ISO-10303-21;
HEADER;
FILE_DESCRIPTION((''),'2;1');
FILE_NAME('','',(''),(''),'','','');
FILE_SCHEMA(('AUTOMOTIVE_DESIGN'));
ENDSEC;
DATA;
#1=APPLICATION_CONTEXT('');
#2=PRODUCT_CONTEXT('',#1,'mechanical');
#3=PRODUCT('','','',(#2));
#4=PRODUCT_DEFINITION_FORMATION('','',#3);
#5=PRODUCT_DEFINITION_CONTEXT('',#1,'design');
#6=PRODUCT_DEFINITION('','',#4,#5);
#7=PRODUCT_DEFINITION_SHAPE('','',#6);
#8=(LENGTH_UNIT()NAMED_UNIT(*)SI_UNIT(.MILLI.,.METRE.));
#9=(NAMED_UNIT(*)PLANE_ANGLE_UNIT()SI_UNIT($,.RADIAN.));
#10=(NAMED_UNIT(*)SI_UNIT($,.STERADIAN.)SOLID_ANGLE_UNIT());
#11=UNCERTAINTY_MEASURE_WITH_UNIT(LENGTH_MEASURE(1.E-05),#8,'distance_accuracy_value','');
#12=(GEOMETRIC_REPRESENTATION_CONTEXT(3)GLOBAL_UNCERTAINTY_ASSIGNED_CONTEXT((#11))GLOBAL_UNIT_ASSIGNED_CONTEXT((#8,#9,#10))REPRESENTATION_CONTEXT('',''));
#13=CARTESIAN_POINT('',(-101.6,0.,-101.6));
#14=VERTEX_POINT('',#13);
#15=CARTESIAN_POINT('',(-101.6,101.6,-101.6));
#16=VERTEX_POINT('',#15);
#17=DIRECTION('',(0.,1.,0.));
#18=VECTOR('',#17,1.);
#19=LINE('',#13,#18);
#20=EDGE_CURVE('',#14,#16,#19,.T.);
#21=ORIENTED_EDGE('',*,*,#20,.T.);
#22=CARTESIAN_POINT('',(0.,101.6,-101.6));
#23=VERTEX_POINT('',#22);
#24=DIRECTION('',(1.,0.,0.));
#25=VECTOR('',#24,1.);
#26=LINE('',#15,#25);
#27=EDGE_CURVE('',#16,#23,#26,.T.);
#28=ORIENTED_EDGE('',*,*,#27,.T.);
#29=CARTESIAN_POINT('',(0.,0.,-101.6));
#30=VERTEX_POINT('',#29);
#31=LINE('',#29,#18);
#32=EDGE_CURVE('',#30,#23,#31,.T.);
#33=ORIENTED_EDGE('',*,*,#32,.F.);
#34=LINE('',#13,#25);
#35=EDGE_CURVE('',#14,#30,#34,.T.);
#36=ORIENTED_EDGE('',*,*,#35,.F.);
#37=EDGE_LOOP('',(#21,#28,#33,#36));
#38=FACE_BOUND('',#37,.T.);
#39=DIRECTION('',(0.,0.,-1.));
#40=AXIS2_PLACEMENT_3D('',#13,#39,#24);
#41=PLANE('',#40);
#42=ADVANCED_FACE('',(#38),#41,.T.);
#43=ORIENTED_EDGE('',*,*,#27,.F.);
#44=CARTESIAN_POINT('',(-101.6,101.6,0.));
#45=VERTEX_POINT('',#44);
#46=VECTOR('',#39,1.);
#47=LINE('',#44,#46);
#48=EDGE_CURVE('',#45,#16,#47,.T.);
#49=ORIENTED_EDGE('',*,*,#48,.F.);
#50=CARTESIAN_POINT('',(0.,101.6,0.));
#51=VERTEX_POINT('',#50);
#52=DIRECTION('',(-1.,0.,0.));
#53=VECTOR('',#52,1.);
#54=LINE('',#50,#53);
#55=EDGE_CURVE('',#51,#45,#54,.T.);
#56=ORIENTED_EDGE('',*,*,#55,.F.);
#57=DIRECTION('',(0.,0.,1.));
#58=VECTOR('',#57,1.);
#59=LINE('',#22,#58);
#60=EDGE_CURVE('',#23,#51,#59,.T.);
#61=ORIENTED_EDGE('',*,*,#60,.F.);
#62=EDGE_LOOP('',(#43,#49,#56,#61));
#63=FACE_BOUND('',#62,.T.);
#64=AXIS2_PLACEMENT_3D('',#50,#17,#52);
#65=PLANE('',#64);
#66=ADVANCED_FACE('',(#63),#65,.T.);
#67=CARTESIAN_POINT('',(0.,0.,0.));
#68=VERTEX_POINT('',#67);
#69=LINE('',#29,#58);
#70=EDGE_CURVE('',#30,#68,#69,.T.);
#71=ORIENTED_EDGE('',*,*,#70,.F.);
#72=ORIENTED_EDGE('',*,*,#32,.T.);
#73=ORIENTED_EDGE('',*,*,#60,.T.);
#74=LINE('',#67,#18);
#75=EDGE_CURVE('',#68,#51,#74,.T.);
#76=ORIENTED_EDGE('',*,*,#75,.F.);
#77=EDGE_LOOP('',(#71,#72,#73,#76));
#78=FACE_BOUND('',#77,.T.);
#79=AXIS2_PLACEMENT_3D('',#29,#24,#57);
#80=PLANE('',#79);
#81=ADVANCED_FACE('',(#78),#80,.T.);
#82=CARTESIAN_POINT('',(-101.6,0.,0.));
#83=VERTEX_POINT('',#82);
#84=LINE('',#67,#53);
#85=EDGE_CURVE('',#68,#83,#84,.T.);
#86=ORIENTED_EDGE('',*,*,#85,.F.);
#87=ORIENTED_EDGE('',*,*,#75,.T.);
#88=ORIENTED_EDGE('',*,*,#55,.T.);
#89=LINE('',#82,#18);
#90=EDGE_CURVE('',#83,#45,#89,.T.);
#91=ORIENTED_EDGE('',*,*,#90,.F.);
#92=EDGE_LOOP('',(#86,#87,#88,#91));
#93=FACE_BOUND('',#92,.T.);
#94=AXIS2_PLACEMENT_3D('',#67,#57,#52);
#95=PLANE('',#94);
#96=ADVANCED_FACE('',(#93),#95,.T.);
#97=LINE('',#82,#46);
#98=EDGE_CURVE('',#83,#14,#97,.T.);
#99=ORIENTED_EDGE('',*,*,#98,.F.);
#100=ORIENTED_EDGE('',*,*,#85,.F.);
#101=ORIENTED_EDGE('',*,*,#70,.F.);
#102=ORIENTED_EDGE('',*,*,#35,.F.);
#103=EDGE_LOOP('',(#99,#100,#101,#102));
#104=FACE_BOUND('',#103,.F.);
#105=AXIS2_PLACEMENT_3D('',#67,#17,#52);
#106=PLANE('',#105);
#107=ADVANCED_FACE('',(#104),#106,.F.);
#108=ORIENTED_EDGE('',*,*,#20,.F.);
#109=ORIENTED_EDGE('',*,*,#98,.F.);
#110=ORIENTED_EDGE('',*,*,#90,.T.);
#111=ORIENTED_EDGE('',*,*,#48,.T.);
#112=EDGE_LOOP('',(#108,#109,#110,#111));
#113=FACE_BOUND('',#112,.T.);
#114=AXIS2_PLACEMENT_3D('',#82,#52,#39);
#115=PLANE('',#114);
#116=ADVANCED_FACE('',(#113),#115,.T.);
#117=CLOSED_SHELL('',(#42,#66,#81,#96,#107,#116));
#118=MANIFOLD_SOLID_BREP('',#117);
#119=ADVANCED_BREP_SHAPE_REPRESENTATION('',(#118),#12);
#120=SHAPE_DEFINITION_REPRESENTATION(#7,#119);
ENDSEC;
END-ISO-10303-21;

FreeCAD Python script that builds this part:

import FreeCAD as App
import Part
import Sketcher

V = App.Vector
Q = App.Units.Quantity


def add_polygon(sketch, points):
    """Adds a closed chain of lines whose ends are joined by coincident constraints."""
    first, n = sketch.GeometryCount, len(points)
    for a, b in zip(points, points[1:] + points[:1]):
        sketch.addGeometry(Part.LineSegment(App.Vector(*a, 0), App.Vector(*b, 0)), False)
    for i in range(n):
        sketch.addConstraint(Sketcher.Constraint("Coincident", first + i, 2, first + (i + 1) % n, 1))

doc = App.newDocument("Part")
params = doc.addObject("Spreadsheet::Sheet", "Params")
for row, (alias, value) in enumerate([
    ("sketch1_width", "4 in"),
    ("pad1_length", "4 in"),
], start=1):
    params.set(f"A{row}", alias)
    params.set(f"B{row}", "=" + value)
    params.setAlias(f"B{row}", alias)

body = doc.addObject("PartDesign::Body", "Body")

sketch1 = body.newObject("Sketcher::SketchObject", "Sketch")
sketch1.AttachmentSupport = (doc.getObject("XZ_Plane"), [""])
sketch1.MapMode = "FlatFace"
add_polygon(sketch1, [(-101.6, 0), (0, 0), (0, -101.6), (-101.6, -101.6)])
sketch1.addConstraint([
    Sketcher.Constraint("Horizontal", 0),
    Sketcher.Constraint("Vertical", 1),
    Sketcher.Constraint("Horizontal", 2),
    Sketcher.Constraint("Vertical", 3),
    Sketcher.Constraint("Coincident", 0, 2, -1, 1),
    Sketcher.Constraint("Equal", 2, 1),
    Sketcher.Constraint("DistanceX", 0, 1, 0, 2, Q("4 in")),
])
sketch1.setExpression("Constraints[10]", "Params.sketch1_width")
pad1 = body.newObject("PartDesign::Pad", "Pad")
pad1.Profile = sketch1
pad1.setExpression("Length", "Params.pad1_length")
pad1.Reversed = True

doc.recompute()
